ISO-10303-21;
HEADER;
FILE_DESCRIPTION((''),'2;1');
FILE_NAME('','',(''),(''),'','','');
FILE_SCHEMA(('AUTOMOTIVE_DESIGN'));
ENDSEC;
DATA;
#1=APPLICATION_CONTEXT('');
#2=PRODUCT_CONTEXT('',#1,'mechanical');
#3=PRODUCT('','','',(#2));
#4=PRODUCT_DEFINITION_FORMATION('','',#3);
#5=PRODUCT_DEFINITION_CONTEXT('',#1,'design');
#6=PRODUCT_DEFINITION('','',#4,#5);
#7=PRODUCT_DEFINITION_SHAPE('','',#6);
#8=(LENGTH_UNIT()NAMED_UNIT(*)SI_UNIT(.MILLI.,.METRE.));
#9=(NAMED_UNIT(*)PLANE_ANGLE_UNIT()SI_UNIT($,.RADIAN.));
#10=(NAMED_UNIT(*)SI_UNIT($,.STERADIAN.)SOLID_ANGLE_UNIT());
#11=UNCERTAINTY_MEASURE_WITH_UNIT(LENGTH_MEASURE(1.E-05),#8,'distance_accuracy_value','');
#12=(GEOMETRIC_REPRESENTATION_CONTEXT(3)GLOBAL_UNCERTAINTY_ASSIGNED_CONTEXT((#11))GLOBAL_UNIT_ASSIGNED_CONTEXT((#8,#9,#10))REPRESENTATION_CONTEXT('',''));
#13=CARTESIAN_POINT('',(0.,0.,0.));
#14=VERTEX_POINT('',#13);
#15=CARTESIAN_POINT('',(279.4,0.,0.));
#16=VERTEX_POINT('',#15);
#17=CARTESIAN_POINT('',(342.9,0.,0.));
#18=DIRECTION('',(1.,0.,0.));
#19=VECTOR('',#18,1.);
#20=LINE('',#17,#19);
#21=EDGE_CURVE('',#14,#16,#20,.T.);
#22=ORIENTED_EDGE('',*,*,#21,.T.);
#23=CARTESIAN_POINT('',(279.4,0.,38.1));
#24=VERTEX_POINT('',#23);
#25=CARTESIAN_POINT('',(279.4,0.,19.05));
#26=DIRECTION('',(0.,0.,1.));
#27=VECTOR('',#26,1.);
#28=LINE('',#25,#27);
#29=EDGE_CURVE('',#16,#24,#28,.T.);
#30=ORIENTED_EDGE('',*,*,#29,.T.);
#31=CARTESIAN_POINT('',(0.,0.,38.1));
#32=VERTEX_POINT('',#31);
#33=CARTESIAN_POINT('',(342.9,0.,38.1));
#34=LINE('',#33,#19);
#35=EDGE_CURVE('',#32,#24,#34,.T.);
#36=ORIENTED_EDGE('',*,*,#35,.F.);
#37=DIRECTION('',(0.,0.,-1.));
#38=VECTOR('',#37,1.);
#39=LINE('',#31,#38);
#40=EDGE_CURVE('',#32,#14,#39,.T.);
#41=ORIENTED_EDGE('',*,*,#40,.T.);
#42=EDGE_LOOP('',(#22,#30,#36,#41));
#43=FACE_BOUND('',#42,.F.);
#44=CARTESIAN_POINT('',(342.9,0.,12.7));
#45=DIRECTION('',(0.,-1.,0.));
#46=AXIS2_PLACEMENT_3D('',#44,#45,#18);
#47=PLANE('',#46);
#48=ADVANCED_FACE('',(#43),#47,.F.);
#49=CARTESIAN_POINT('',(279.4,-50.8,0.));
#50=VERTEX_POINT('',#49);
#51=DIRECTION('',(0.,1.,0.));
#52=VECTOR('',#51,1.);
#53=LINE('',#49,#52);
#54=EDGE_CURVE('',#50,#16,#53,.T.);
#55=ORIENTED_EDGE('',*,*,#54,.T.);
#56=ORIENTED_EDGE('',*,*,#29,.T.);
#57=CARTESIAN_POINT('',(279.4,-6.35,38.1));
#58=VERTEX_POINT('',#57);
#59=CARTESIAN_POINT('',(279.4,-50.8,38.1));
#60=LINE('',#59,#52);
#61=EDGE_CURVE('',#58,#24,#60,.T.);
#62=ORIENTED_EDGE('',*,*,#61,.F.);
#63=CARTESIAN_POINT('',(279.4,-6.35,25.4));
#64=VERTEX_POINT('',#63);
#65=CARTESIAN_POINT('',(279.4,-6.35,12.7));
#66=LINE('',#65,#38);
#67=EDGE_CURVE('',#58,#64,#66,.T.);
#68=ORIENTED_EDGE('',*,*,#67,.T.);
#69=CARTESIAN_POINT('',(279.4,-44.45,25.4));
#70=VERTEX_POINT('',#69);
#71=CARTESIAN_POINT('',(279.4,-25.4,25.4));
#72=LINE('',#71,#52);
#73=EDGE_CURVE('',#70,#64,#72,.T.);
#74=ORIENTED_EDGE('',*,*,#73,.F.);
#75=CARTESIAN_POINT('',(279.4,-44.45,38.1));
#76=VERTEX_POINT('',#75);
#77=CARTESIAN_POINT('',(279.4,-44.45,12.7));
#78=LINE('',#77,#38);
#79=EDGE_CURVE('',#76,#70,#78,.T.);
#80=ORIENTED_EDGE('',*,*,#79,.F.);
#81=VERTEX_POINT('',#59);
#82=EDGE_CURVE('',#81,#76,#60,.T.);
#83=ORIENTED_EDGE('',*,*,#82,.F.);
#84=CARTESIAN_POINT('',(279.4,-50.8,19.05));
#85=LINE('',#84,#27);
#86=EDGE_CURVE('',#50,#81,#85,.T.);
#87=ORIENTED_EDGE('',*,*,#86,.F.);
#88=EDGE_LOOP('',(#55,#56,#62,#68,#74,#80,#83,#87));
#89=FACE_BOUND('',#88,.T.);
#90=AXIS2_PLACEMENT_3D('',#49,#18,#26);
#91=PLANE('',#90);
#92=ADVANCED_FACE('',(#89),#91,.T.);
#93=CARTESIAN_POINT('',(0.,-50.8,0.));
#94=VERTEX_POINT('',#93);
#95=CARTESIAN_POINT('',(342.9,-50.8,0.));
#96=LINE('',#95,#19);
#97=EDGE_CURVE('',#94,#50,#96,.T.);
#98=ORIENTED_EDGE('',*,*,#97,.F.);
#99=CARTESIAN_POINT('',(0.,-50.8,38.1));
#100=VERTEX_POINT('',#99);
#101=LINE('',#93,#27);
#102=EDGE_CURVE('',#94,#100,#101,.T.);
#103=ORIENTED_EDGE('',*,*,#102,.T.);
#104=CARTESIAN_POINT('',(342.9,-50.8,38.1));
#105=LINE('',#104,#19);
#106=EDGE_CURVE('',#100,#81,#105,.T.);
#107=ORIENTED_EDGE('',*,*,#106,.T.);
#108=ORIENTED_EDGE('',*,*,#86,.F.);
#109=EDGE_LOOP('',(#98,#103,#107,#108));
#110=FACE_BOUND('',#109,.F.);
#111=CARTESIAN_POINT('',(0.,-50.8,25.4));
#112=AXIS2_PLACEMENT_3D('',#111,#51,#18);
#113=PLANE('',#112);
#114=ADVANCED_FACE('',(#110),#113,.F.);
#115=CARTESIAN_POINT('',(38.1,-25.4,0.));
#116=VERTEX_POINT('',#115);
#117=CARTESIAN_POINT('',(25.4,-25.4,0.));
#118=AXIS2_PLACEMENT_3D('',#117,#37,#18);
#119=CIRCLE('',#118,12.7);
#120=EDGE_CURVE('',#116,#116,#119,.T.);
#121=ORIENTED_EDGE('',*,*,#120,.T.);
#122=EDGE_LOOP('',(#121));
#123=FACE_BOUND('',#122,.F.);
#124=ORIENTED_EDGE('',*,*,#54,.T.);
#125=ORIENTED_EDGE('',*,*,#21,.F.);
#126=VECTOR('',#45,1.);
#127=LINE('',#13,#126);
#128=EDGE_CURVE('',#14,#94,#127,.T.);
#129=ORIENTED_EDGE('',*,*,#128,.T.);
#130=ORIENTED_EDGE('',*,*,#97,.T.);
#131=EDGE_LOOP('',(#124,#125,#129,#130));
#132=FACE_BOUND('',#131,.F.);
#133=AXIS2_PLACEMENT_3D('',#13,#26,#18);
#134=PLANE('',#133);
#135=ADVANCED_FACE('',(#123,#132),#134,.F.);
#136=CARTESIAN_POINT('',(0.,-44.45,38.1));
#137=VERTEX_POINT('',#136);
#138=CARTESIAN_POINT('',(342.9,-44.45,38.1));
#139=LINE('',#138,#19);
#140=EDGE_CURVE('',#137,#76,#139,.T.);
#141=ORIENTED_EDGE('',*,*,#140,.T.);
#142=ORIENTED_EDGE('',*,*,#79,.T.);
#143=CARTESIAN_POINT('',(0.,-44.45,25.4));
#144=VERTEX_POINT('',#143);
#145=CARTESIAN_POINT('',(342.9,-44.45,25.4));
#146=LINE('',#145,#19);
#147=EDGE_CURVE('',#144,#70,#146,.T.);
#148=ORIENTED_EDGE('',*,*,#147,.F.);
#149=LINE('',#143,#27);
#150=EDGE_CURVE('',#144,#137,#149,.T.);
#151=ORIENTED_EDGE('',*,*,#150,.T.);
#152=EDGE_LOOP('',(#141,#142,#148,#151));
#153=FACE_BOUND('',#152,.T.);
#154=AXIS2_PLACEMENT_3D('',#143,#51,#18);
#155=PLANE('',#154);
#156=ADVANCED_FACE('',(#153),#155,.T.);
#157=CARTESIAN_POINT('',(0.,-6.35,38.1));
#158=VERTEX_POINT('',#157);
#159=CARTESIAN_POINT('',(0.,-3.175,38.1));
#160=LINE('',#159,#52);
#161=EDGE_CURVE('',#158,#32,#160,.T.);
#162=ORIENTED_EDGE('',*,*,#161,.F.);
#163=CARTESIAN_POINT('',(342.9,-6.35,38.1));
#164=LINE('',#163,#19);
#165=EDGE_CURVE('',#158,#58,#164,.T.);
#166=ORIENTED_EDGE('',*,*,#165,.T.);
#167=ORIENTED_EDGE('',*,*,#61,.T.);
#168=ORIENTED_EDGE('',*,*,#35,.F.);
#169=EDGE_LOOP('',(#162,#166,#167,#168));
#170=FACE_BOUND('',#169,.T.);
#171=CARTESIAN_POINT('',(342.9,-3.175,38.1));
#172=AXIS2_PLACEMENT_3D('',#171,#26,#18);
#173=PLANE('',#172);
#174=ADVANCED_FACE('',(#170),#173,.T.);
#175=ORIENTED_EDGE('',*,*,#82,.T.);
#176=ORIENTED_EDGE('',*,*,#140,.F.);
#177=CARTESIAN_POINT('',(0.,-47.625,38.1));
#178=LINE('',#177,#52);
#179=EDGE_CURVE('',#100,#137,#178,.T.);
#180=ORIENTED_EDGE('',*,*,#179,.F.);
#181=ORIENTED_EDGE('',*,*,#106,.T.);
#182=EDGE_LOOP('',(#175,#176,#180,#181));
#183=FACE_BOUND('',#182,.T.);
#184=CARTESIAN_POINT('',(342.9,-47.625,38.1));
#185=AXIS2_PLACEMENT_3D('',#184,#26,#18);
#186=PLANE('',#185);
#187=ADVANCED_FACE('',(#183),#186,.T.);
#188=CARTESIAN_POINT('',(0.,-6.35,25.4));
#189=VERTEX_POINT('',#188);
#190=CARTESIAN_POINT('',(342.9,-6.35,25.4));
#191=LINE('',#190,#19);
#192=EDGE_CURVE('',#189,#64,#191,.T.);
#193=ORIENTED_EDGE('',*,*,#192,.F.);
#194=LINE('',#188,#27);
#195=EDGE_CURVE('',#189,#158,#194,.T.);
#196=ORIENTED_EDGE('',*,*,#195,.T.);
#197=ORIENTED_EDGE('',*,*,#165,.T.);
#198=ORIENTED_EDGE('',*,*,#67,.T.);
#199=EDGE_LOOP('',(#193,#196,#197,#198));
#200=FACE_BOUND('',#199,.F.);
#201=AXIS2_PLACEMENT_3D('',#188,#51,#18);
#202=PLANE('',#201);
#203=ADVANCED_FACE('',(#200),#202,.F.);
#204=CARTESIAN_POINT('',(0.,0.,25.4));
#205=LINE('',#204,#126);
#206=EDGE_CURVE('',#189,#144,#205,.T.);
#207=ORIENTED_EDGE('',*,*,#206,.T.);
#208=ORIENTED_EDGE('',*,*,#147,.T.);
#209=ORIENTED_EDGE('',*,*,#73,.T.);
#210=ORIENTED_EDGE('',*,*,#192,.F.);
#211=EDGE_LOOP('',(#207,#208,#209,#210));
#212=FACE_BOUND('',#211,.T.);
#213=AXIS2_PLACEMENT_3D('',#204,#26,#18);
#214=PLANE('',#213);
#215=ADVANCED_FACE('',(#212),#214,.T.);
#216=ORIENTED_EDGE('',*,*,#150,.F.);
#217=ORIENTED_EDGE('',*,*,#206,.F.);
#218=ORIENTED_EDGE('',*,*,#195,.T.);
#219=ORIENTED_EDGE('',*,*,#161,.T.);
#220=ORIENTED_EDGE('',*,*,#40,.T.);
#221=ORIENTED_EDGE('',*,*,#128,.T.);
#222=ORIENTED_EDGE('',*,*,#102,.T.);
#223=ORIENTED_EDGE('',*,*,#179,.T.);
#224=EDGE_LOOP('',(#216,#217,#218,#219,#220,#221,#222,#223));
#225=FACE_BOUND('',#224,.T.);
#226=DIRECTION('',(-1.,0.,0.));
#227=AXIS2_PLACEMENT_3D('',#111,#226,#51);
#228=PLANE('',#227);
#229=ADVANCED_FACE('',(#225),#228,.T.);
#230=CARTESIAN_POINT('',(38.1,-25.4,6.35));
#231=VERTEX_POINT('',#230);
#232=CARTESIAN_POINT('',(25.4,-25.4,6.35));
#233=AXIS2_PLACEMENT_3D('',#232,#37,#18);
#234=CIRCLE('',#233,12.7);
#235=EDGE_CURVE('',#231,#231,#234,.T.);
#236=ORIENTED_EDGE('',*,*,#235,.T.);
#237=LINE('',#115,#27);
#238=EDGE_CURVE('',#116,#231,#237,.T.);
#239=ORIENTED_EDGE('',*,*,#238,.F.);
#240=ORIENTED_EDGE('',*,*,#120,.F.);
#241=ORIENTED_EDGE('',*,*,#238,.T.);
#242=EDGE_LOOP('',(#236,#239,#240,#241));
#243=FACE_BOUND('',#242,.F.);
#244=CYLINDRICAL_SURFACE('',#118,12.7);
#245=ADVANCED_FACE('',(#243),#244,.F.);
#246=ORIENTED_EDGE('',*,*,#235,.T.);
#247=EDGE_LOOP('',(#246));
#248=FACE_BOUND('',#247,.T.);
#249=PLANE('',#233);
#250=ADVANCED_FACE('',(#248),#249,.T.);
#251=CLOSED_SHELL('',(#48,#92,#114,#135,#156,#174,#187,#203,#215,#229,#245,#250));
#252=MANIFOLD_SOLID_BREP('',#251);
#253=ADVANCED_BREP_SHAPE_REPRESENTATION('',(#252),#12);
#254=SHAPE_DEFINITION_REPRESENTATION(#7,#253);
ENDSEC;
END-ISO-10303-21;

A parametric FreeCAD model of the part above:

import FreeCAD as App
import Part
import Sketcher
from FreeCAD import Vector
Q = App.Units.Quantity


def add_polygon(sketch, points):
    """Adds a closed chain of lines whose ends are joined by coincident constraints."""
    first, n = sketch.GeometryCount, len(points)
    for a, b in zip(points, points[1:] + points[:1]):
        sketch.addGeometry(Part.LineSegment(App.Vector(*a, 0), App.Vector(*b, 0)), False)
    for i in range(n):
        sketch.addConstraint(Sketcher.Constraint("Coincident", first + i, 2, first + (i + 1) % n, 1))

doc = App.newDocument("Part")
body = doc.addObject("PartDesign::Body", "Body")

# Sketch on XZ plane
sketch1 = body.newObject("Sketcher::SketchObject", "Sketch")
sketch1.AttachmentSupport = (doc.getObject("XZ_Plane"), [""])
sketch1.MapMode = "FlatFace"
add_polygon(sketch1, [(0, 25.4), (0, 0), (685.8, 0), (685.8, 25.4)])  # lines 0-3
sketch1.addConstraint([
    Sketcher.Constraint("Vertical", 0),
    Sketcher.Constraint("Horizontal", 1),
    Sketcher.Constraint("Vertical", 2),
    Sketcher.Constraint("Horizontal", 3),
    Sketcher.Constraint("Coincident", 0, 2, -1, 1),
    Sketcher.Constraint("DistanceX", 1, 1, 1, 2, Q("27 in")),
    Sketcher.Constraint("DistanceY", 0, 2, 0, 1, Q("1 in")),
])
pad1 = body.newObject("PartDesign::Pad", "Pad")
pad1.Profile = sketch1
pad1.Length = Q("2 in")

# Sketch on XY plane
sketch2 = body.newObject("Sketcher::SketchObject", "Sketch001")
sketch2.AttachmentSupport = (doc.getObject("XY_Plane"), [""])
sketch2.MapMode = "FlatFace"
sketch2.AttachmentOffset = App.Placement(Vector(0, 0, 1 * 25.4), App.Rotation())
add_polygon(sketch2, [(0, -44.45), (0, -50.8), (685.8, -50.8), (685.8, -44.45)])  # lines 0-3
add_polygon(sketch2, [(0, 0), (0, -6.35), (685.8, -6.35), (685.8, 0)])  # lines 4-7
sketch2.addConstraint([
    Sketcher.Constraint("Vertical", 0),
    Sketcher.Constraint("Horizontal", 1),
    Sketcher.Constraint("Vertical", 2),
    Sketcher.Constraint("Horizontal", 3),
    Sketcher.Constraint("Vertical", 4),
    Sketcher.Constraint("Horizontal", 5),
    Sketcher.Constraint("Vertical", 6),
    Sketcher.Constraint("Horizontal", 7),
    Sketcher.Constraint("Coincident", 7, 2, -1, 1),
    Sketcher.Constraint("PointOnObject", 0, 2, -2),
    Sketcher.Constraint("Vertical", 2, 2, 5, 2),
    Sketcher.Constraint("Equal", 2, 4),
    Sketcher.Constraint("DistanceX", 1, 1, 1, 2, Q("27 in")),
    Sketcher.Constraint("DistanceY", 0, 2, -1, 1, Q("2 in")),
    Sketcher.Constraint("DistanceY", 0, 2, 0, 1, Q("0.25 in")),
])
pad2 = body.newObject("PartDesign::Pad", "Pad001")
pad2.Profile = sketch2
pad2.Length = Q("0.5 in")

# Sketch on XY plane
sketch3 = body.newObject("Sketcher::SketchObject", "Sketch002")
sketch3.AttachmentSupport = (doc.getObject("XY_Plane"), [""])
sketch3.MapMode = "FlatFace"
sketch3.addGeometry(Part.Circle(Vector(342.9, -25.4, 0), Vector(0, 0, 1), 12.7), False)
sketch3.addConstraint([
    Sketcher.Constraint("Diameter", 0, Q("1 in")),
    Sketcher.Constraint("DistanceY", 0, 3, -1, 1, Q("1 in")),
    Sketcher.Constraint("DistanceX", -1, 1, 0, 3, Q("13.5 in")),
])
pocket1 = body.newObject("PartDesign::Pocket", "Pocket")
pocket1.Profile = sketch3
pocket1.Length = Q("0.25 in")
pocket1.Reversed = True

# Sketch on XY plane
sketch4 = body.newObject("Sketcher::SketchObject", "Sketch003")
sketch4.AttachmentSupport = (doc.getObject("XY_Plane"), [""])
sketch4.MapMode = "FlatFace"
sketch4.addGeometry([
    Part.Circle(Vector(25.4, -25.4, 0), Vector(0, 0, 1), 12.7),
    Part.Circle(Vector(660.4, -25.4, 0), Vector(0, 0, 1), 12.7),
], False)
sketch4.addConstraint([
    Sketcher.Constraint("Equal", 0, 1),
    Sketcher.Constraint("Horizontal", 0, 3, 1, 3),
    Sketcher.Constraint("Diameter", 0, Q("1 in")),
    Sketcher.Constraint("DistanceX", -1, 1, 0, 3, Q("1 in")),
    Sketcher.Constraint("DistanceY", 0, 3, -1, 1, Q("1 in")),
    Sketcher.Constraint("DistanceX", -1, 1, 1, 3, Q("26 in")),
])
pocket2 = body.newObject("PartDesign::Pocket", "Pocket001")
pocket2.Profile = sketch4
pocket2.Length = Q("0.25 in")
pocket2.Reversed = True

# Sketch on XZ plane
sketch5 = body.newObject("Sketcher::SketchObject", "Sketch004")
sketch5.AttachmentSupport = (doc.getObject("XZ_Plane"), [""])
sketch5.MapMode = "FlatFace"
sketch5.AttachmentOffset = App.Placement(Vector(0, 0, 2 * 25.4), App.Rotation())
add_polygon(sketch5, [(279.4, 38.1), (279.4, 0), (685.8, 0), (685.8, 38.1)])  # lines 0-3
sketch5.addConstraint([
    Sketcher.Constraint("Vertical", 0),
    Sketcher.Constraint("Horizontal", 1),
    Sketcher.Constraint("Vertical", 2),
    Sketcher.Constraint("Horizontal", 3),
    Sketcher.Constraint("PointOnObject", 0, 2, -1),
    Sketcher.Constraint("DistanceX", 1, 1, 1, 2, Q("16 in")),
    Sketcher.Constraint("DistanceY", 0, 2, 0, 1, Q("1.5 in")),
    Sketcher.Constraint("DistanceX", -1, 1, 0, 2, Q("11 in")),
])
pocket3 = body.newObject("PartDesign::Pocket", "Pocket002")
pocket3.Profile = sketch5
pocket3.Length = Q("2 in")

doc.recompute()
